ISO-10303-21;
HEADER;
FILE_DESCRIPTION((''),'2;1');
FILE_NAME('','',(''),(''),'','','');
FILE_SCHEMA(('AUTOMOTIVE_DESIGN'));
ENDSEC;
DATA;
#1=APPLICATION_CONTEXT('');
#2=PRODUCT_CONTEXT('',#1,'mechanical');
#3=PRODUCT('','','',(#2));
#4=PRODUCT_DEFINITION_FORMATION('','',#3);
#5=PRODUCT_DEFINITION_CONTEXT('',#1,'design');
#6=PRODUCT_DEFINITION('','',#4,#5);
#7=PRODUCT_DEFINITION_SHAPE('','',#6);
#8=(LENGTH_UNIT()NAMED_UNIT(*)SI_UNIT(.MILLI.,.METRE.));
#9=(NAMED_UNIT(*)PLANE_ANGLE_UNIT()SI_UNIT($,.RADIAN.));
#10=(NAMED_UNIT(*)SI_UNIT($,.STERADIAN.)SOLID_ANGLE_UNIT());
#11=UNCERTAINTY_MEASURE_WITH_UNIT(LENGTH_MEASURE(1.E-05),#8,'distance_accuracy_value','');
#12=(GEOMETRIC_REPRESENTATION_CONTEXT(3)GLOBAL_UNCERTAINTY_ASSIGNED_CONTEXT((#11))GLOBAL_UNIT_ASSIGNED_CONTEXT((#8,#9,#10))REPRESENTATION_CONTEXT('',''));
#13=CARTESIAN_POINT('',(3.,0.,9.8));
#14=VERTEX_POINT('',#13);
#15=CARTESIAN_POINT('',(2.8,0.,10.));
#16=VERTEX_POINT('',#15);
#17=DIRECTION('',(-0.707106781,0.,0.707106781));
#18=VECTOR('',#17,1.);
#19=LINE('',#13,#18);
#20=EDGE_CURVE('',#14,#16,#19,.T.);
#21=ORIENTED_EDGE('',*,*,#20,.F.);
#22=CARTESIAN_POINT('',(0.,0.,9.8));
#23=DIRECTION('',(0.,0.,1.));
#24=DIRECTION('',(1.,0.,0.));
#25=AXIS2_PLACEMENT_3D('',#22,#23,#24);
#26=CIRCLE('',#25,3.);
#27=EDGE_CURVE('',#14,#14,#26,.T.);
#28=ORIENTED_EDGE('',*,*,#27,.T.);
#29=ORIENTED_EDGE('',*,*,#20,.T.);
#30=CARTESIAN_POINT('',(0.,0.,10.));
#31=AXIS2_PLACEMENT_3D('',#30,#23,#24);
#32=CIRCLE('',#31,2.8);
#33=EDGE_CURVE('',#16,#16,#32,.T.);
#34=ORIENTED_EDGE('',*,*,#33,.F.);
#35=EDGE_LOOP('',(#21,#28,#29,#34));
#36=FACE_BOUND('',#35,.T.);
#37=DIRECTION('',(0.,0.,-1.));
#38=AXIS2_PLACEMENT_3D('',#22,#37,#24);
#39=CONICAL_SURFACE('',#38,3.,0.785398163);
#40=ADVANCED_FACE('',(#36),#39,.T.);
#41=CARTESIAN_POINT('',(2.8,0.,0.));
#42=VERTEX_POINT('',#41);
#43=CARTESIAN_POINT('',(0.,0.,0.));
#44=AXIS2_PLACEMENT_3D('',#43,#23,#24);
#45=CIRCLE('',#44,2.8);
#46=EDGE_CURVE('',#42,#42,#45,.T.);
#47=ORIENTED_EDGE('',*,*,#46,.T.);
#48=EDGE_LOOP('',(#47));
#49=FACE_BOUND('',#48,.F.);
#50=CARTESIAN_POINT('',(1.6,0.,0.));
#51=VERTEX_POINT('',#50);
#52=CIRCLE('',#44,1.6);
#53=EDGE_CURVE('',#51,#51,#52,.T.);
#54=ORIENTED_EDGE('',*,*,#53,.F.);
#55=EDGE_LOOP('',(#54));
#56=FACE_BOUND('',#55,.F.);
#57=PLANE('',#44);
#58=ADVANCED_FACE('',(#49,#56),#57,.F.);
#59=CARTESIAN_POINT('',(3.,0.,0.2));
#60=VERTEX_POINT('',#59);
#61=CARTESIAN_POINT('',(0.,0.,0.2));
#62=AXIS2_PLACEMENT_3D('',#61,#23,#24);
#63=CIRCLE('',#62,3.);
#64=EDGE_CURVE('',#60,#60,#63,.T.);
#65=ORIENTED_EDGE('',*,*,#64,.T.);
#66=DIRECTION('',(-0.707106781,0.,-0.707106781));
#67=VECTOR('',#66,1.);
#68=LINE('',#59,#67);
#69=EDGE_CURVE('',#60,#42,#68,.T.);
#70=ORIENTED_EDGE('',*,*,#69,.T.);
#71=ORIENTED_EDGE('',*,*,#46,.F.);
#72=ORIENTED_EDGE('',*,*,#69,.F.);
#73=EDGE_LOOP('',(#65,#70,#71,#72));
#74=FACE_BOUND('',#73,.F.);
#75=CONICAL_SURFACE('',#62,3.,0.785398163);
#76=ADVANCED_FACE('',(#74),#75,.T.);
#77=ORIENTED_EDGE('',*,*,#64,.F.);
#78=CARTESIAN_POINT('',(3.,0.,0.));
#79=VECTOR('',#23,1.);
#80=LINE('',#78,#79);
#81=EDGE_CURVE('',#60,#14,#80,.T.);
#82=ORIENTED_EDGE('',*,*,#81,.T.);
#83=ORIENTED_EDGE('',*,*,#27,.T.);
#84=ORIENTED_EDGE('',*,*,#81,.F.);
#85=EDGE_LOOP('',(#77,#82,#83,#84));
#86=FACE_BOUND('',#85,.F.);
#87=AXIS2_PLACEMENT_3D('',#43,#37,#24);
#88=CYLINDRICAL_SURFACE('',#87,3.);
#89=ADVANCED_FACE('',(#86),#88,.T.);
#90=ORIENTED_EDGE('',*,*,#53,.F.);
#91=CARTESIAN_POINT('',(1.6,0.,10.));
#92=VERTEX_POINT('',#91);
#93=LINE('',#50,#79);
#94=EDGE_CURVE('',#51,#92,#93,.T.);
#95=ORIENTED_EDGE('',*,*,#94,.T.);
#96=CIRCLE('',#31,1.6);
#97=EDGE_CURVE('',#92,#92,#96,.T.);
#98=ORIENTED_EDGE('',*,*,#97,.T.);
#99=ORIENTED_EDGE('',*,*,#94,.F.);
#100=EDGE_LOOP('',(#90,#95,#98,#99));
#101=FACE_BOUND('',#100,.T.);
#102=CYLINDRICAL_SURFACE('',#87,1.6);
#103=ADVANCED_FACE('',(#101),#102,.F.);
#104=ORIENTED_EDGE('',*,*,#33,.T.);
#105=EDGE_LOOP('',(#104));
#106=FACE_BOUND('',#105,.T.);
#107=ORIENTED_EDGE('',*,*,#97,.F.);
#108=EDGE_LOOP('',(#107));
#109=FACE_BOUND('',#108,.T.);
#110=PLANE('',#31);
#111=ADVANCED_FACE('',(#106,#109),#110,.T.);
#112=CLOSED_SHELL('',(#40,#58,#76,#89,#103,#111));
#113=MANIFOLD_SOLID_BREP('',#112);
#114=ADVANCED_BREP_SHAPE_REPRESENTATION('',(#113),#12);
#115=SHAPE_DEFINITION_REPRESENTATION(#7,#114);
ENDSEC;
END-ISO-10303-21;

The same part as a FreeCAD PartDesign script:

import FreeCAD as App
import Part
import Sketcher

V = App.Vector


def edges_at(feature, points):
    """Names of the edges that pass closest to the given points."""
    edges = feature.Shape.Edges
    near = lambda p: min(range(len(edges)), key=lambda i: edges[i].distToShape(Part.Vertex(*p))[0])
    return sorted({f"Edge{near(p) + 1}" for p in points})

doc = App.newDocument("Part")
body = doc.addObject("PartDesign::Body", "Body")

# Sketch on XY plane
sketch1 = body.newObject("Sketcher::SketchObject", "Sketch")
sketch1.AttachmentSupport = (doc.getObject("XY_Plane"), [""])
sketch1.MapMode = "FlatFace"
sketch1.addGeometry(Part.Circle(V(0, 0, 0), V(0, 0, 1), 3), False)
sketch1.addGeometry(Part.Circle(V(0, 0, 0), V(0, 0, 1), 1.6), False)
sketch1.addConstraint(Sketcher.Constraint("Coincident", 0, 3, -1, 1))
sketch1.addConstraint(Sketcher.Constraint("Coincident", 1, 3, -1, 1))
sketch1.addConstraint(Sketcher.Constraint("Diameter", 0, 6.0))
sketch1.addConstraint(Sketcher.Constraint("Diameter", 1, 3.2))
pad1 = body.newObject("PartDesign::Pad", "Pad")
pad1.Profile = sketch1
pad1.Length = 10
doc.recompute()

chamfer = body.newObject("PartDesign::Chamfer", "Chamfer")
chamfer.Base = (pad1, edges_at(pad1, [(-3, 0, 10), (-3, 0, 0)]))
chamfer.Size = 0.2

doc.recompute()
